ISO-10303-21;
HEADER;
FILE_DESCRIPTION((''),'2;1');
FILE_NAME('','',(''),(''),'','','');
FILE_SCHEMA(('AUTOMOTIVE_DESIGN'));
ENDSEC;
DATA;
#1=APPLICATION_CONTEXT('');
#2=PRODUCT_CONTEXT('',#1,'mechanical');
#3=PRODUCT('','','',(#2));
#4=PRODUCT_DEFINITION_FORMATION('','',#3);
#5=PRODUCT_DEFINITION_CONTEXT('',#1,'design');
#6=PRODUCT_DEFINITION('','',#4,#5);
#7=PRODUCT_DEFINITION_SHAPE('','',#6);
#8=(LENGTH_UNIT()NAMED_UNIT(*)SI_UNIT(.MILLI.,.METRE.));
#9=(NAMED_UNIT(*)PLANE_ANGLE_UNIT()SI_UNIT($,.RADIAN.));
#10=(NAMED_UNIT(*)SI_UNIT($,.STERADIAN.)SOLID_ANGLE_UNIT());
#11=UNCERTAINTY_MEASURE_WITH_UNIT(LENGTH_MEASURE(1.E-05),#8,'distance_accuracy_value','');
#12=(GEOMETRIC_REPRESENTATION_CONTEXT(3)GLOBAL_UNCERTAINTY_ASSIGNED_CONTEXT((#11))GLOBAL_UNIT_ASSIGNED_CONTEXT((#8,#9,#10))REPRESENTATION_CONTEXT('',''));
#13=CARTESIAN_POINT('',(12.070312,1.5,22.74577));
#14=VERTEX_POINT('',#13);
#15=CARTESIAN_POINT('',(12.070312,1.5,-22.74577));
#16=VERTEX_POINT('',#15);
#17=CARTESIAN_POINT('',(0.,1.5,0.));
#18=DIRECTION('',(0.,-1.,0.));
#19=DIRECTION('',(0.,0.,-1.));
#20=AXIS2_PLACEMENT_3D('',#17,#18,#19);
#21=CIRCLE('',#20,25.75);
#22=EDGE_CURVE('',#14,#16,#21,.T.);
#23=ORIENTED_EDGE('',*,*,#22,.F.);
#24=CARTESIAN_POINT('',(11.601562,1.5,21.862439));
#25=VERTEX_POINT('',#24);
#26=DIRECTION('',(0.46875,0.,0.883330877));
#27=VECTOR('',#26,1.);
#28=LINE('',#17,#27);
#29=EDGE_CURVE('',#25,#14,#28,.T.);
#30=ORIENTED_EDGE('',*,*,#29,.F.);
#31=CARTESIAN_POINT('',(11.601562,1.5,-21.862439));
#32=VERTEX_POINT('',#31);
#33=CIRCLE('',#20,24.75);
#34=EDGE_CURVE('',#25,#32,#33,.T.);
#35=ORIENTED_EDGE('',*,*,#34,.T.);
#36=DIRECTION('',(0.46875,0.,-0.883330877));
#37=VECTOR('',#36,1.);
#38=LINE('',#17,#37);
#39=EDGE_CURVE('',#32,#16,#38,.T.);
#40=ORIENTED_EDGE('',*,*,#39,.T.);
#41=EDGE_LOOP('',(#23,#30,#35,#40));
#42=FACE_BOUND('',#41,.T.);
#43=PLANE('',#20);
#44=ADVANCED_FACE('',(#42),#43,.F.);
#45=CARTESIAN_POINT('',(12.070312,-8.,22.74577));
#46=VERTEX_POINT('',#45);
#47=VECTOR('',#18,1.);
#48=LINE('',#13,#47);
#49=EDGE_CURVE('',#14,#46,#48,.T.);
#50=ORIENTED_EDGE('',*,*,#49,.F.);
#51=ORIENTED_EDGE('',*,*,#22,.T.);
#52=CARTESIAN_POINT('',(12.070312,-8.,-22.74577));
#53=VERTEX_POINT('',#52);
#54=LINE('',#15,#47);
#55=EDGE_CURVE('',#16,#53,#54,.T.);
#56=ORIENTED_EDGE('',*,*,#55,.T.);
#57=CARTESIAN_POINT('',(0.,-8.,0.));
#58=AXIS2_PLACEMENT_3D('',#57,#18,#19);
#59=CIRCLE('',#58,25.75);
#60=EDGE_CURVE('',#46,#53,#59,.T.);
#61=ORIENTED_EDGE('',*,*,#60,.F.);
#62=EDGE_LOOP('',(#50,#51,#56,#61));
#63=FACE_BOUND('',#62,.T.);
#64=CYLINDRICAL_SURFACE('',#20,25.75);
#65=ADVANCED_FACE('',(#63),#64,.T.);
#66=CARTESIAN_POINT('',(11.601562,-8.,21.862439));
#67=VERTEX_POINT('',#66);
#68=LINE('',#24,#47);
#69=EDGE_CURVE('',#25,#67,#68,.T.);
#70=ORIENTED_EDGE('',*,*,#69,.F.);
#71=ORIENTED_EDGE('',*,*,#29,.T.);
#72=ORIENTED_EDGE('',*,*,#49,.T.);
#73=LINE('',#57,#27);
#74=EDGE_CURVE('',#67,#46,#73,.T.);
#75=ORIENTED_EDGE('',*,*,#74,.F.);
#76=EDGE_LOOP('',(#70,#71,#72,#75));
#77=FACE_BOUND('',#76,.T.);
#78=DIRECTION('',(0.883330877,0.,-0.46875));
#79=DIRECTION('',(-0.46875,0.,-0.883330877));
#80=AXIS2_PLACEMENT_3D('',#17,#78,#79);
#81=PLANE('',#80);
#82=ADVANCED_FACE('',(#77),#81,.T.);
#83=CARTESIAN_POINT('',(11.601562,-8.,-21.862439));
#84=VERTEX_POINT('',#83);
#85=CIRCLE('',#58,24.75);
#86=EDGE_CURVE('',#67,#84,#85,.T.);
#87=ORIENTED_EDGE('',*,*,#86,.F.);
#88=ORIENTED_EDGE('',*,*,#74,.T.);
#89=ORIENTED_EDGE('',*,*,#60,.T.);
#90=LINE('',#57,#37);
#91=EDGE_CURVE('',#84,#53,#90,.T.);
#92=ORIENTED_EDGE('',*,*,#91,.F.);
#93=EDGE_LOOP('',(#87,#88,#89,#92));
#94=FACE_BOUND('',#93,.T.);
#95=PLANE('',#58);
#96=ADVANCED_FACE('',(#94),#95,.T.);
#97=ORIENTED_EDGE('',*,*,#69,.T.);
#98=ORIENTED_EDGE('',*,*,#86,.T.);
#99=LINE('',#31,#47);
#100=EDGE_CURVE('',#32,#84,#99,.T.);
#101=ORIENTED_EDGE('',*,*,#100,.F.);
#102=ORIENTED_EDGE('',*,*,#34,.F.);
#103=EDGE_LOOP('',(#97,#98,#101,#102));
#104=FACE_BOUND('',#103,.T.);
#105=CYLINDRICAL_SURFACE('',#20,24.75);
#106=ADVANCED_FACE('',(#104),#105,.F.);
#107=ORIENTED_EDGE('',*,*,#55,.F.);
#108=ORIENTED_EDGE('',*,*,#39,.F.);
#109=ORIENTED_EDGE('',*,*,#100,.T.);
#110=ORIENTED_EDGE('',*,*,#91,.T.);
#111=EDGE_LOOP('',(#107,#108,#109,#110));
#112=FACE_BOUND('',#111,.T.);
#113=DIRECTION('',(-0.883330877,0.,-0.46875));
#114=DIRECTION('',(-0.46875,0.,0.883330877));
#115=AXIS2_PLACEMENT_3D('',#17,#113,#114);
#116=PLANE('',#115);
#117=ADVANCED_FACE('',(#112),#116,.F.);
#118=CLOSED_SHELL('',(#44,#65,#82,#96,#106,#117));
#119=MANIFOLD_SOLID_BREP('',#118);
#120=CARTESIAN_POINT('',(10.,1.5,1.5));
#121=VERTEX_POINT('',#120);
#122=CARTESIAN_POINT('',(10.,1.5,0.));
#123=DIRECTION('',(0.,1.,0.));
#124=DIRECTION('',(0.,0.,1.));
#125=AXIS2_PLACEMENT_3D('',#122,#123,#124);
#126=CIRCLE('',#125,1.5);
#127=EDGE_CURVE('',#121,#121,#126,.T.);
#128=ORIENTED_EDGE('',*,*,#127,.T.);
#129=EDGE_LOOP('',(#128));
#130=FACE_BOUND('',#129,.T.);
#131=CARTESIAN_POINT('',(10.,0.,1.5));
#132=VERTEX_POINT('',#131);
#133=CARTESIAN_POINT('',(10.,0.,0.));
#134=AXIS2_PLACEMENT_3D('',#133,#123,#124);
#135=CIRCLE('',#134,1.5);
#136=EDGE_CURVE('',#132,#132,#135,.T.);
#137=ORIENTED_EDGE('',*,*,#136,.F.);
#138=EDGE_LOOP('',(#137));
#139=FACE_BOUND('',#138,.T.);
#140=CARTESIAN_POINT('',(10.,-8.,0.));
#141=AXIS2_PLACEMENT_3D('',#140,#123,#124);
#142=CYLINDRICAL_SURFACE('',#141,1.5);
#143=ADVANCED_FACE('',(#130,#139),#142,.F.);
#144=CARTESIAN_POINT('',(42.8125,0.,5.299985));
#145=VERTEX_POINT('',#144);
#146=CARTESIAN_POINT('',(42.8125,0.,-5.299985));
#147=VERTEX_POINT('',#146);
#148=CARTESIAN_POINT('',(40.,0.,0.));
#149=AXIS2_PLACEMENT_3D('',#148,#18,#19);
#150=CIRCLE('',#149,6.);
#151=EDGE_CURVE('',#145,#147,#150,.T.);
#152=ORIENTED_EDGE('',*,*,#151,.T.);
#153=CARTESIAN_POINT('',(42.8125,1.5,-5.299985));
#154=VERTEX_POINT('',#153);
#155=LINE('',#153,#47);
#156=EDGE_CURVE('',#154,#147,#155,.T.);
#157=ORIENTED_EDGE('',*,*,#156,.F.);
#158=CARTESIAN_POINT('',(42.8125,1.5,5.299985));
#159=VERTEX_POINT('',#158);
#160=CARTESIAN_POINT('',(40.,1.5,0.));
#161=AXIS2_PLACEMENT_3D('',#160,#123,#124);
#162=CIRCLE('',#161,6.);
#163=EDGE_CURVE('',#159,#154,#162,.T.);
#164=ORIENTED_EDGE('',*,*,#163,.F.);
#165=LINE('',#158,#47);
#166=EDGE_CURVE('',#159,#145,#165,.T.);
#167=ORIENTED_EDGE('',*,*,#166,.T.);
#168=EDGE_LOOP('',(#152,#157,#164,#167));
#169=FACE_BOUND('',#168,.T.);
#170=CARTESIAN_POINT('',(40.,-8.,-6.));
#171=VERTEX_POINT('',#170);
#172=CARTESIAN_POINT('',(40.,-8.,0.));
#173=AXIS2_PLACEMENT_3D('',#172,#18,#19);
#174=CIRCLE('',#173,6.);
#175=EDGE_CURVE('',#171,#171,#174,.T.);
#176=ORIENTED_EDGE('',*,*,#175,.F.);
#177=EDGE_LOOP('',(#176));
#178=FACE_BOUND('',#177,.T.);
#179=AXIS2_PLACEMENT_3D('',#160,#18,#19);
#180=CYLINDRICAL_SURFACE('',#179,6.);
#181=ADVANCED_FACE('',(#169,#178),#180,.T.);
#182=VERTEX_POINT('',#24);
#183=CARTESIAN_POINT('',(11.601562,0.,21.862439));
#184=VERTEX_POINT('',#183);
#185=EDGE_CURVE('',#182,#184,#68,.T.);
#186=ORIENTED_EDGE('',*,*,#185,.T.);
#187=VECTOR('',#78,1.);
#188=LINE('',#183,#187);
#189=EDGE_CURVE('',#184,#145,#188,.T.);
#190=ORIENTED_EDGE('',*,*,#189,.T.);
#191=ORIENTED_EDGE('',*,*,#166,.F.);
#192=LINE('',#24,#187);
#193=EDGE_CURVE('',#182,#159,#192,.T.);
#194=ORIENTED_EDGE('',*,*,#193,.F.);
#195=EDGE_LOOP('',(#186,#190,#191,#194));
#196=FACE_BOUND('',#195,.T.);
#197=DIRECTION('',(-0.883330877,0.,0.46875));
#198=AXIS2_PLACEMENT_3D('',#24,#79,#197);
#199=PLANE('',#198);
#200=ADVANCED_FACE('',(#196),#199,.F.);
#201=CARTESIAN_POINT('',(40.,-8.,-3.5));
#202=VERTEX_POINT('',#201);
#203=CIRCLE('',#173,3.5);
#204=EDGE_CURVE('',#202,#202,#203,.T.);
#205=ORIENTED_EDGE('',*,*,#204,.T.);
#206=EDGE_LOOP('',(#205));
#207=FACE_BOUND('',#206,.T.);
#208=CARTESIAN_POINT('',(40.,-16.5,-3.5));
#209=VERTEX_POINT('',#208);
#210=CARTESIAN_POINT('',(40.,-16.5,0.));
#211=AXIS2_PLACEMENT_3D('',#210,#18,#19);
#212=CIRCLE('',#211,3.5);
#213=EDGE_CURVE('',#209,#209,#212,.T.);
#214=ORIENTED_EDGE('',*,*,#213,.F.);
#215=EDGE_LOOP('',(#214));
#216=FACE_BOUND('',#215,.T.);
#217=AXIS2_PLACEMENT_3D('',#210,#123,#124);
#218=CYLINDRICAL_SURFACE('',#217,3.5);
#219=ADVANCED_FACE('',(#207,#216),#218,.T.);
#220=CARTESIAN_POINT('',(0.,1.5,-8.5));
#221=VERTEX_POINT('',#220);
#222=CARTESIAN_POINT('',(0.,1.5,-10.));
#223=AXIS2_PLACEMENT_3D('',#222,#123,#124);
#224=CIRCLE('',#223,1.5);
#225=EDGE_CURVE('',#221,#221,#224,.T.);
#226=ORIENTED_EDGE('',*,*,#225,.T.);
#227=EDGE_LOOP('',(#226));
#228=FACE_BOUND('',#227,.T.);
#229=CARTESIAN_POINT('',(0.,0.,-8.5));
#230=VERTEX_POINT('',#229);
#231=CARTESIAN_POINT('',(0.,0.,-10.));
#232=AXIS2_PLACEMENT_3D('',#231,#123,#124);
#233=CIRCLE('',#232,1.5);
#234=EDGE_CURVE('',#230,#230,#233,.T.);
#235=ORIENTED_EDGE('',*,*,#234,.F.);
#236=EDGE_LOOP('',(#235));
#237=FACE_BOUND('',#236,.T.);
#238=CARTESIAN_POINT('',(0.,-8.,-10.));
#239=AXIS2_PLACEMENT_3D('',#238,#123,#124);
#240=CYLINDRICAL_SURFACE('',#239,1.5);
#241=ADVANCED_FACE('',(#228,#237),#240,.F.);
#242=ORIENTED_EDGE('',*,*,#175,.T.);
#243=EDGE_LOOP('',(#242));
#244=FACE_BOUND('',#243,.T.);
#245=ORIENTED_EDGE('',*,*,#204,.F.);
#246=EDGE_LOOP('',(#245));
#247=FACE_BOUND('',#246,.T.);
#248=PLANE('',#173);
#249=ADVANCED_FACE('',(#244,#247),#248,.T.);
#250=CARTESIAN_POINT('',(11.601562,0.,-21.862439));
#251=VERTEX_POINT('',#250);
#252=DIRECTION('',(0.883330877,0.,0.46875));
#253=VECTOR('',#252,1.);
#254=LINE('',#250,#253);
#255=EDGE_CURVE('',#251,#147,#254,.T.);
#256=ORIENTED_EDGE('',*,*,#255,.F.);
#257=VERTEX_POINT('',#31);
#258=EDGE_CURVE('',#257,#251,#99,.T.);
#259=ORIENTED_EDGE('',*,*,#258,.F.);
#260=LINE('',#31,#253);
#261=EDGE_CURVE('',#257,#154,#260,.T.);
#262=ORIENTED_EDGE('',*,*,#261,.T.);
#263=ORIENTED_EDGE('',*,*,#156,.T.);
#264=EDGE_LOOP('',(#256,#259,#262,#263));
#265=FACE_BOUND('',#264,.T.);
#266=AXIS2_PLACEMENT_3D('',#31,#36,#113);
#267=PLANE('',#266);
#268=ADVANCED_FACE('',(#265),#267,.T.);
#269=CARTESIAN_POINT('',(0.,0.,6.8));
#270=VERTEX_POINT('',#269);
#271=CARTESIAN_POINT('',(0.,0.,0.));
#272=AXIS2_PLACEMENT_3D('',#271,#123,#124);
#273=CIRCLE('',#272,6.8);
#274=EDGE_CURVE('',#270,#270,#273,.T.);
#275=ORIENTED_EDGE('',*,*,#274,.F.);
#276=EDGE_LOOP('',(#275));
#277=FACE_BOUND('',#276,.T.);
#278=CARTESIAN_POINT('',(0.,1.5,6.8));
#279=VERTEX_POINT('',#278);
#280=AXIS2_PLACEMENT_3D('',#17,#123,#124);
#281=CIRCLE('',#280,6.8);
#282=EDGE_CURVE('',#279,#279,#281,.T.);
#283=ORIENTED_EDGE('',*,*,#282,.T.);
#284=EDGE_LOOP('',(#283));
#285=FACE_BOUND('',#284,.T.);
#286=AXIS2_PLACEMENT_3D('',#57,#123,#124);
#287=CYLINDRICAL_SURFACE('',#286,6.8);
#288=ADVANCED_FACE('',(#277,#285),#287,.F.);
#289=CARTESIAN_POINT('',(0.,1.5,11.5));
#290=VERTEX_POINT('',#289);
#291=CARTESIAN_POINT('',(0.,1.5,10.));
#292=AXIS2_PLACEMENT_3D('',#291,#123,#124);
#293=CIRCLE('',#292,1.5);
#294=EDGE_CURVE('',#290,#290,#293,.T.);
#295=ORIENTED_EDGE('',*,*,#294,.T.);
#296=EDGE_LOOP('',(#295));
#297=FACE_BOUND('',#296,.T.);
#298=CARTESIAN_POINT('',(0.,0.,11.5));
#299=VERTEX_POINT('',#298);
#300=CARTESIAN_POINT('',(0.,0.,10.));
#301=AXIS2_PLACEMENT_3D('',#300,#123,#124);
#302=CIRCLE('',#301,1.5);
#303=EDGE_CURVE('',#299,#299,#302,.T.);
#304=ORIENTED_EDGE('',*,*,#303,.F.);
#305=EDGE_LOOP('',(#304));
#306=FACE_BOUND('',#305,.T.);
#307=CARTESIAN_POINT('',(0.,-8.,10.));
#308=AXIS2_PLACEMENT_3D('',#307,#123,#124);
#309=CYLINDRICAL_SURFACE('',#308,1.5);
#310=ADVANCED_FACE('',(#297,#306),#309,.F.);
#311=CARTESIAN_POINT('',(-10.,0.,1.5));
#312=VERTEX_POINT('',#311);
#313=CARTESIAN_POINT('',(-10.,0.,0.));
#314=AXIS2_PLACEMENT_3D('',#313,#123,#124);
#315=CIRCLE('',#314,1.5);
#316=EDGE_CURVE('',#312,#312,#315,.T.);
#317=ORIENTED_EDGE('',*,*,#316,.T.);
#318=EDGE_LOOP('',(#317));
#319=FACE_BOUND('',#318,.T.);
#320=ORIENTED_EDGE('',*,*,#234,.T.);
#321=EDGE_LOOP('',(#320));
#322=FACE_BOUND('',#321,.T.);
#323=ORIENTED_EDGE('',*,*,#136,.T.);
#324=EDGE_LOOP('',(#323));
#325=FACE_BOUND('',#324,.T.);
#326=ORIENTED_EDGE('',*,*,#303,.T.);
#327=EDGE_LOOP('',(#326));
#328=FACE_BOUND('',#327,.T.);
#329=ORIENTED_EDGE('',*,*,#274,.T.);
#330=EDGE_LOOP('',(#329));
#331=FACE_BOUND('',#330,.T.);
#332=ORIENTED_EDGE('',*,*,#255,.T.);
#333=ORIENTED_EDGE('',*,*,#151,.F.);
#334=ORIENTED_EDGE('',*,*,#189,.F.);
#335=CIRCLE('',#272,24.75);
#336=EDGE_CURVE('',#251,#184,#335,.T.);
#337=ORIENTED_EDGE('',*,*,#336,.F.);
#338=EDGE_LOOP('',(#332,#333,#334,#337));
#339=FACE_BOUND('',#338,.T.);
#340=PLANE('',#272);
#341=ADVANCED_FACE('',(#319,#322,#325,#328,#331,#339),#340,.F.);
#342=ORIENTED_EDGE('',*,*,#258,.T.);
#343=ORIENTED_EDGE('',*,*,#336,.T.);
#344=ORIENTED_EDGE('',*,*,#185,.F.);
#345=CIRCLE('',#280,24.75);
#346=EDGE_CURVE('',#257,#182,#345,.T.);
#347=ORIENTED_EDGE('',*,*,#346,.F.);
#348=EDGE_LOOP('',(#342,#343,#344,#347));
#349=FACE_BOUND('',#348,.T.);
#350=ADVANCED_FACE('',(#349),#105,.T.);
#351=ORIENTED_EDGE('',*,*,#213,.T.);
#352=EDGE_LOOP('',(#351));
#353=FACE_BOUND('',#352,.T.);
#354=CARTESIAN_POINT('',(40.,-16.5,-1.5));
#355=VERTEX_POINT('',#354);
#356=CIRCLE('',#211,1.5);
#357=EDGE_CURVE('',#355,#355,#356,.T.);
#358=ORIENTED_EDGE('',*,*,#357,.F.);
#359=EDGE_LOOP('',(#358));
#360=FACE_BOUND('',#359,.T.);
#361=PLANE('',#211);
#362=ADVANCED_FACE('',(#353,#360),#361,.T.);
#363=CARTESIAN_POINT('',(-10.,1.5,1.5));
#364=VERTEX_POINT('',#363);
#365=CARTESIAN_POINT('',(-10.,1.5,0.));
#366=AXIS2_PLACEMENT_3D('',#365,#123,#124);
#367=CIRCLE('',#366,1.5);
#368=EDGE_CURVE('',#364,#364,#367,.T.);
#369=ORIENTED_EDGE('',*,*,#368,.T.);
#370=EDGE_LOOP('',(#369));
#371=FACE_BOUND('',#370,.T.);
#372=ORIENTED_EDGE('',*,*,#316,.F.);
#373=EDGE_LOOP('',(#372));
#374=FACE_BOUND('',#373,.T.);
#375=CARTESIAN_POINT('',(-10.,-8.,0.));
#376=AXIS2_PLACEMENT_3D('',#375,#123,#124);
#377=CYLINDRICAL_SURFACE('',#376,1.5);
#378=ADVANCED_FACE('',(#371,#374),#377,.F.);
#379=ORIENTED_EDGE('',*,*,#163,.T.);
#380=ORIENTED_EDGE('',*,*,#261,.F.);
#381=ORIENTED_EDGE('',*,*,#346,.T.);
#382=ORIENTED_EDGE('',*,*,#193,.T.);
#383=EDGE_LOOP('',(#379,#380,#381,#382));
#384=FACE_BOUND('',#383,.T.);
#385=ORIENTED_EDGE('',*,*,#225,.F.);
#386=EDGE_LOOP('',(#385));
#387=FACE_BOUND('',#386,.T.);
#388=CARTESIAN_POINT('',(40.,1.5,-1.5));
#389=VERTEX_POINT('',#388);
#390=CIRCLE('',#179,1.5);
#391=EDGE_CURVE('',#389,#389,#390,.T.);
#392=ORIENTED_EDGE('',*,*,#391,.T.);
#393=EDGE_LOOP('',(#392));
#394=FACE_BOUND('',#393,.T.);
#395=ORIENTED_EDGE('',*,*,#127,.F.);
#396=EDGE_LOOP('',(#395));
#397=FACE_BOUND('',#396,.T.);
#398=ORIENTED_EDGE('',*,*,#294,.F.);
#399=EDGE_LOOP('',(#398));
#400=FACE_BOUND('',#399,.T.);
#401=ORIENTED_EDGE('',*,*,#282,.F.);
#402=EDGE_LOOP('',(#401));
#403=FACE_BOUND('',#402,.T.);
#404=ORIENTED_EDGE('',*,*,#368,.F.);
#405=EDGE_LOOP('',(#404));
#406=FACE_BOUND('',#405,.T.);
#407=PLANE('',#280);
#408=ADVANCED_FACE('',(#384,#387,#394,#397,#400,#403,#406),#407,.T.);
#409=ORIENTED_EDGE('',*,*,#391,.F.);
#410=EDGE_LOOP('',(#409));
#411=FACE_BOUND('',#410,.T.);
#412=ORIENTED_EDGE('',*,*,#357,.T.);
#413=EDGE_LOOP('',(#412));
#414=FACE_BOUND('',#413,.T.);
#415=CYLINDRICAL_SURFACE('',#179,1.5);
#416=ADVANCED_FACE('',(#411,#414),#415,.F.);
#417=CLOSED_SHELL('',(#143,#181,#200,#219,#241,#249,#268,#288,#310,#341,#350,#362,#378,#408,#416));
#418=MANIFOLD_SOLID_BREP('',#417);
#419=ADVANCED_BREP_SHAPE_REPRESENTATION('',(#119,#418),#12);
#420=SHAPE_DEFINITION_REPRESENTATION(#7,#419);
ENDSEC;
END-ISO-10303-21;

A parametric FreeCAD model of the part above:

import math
import FreeCAD as App
import Part
import Sketcher
from FreeCAD import Vector

doc = App.newDocument("Part")
body = doc.addObject("PartDesign::Body", "Body")

sketch1 = body.newObject("Sketcher::SketchObject", "Sketch")
sketch1.AttachmentSupport = (doc.getObject("XZ_Plane"), [""])
sketch1.MapMode = "FlatFace"
sketch1.addGeometry(Part.LineSegment(Vector(43, -5, 0), Vector(12, -22, 0)), False)
sketch1.addGeometry(Part.ArcOfCircle(Part.Circle(Vector(0, 0, 0), Vector(0, 0, 1), 25), math.radians(62), math.radians(298)), False)
sketch1.addGeometry(Part.LineSegment(Vector(12, 22, 0), Vector(43, 5, 0)), False)
sketch1.addGeometry(Part.ArcOfCircle(Part.Circle(Vector(40, 0, 0), Vector(0, 0, 1), 6), math.radians(-62), math.radians(62)), False)
sketch1.addConstraint(Sketcher.Constraint("Tangent", 0, 2, 1, 2))
sketch1.addConstraint(Sketcher.Constraint("Tangent", 1, 1, 2, 1))
sketch1.addConstraint(Sketcher.Constraint("Tangent", 2, 2, 3, 2))
sketch1.addConstraint(Sketcher.Constraint("Tangent", 3, 1, 0, 1))
sketch1.addConstraint(Sketcher.Constraint("Coincident", 1, 3, -1, 1))
sketch1.addConstraint(Sketcher.Constraint("PointOnObject", 3, 3, -1))
sketch1.addConstraint(Sketcher.Constraint("Radius", 3, 6.0))
sketch1.addConstraint(Sketcher.Constraint("Radius", 1, 24.75))
sketch1.addConstraint(Sketcher.Constraint("DistanceX", -1, 1, 3, 3, 40.0))
pad1 = body.newObject("PartDesign::Pad", "Pad")
pad1.Profile = sketch1
pad1.Length = 1.5
pad1.Reversed = True

sketch2 = body.newObject("Sketcher::SketchObject", "Sketch001")
sketch2.AttachmentSupport = (doc.getObject("XZ_Plane"), [""])
sketch2.MapMode = "FlatFace"
sketch2.AttachmentOffset = App.Placement(Vector(0, 0, -1.5), App.Rotation())
sketch2.addGeometry(Part.Circle(Vector(0, 0, 0), Vector(0, 0, 1), 6.8), False)
sketch2.addGeometry(Part.Circle(Vector(0, -10, 0), Vector(0, 0, 1), 1.5), False)
sketch2.addGeometry(Part.Circle(Vector(10, 0, 0), Vector(0, 0, 1), 1.5), False)
sketch2.addGeometry(Part.Circle(Vector(0, 10, 0), Vector(0, 0, 1), 1.5), False)
sketch2.addGeometry(Part.Circle(Vector(-10, 0, 0), Vector(0, 0, 1), 1.5), False)
sketch2.addConstraint(Sketcher.Constraint("Coincident", 0, 3, -1, 1))
sketch2.addConstraint(Sketcher.Constraint("Equal", 1, 2))
sketch2.addConstraint(Sketcher.Constraint("Equal", 2, 3))
sketch2.addConstraint(Sketcher.Constraint("Equal", 3, 4))
sketch2.addConstraint(Sketcher.Constraint("Symmetric", 1, 3, 3, 3, -1, 1))
sketch2.addConstraint(Sketcher.Constraint("Symmetric", 2, 3, 4, 3, -1, 1))
sketch2.addConstraint(Sketcher.Constraint("PointOnObject", 1, 3, -2))
sketch2.addConstraint(Sketcher.Constraint("PointOnObject", 2, 3, -1))
sketch2.addConstraint(Sketcher.Constraint("Diameter", 1, 3.0))
sketch2.addConstraint(Sketcher.Constraint("Diameter", 0, 13.6))
sketch2.addConstraint(Sketcher.Constraint("DistanceY", 1, 3, -1, 1, 10.0))
sketch2.addConstraint(Sketcher.Constraint("DistanceX", -1, 1, 2, 3, 10.0))
pocket1 = body.newObject("PartDesign::Pocket", "Pocket")
pocket1.Profile = sketch2
pocket1.Type = "ThroughAll"
pocket1.Reversed = True

sketch3 = body.newObject("Sketcher::SketchObject", "Sketch002")
sketch3.AttachmentSupport = (doc.getObject("XZ_Plane"), [""])
sketch3.MapMode = "FlatFace"
sketch3.AttachmentOffset = App.Placement(Vector(0, 0, 8), App.Rotation())
sketch3.addGeometry(Part.Circle(Vector(40, 0, 0), Vector(0, 0, 1), 6), False)
sketch3.addConstraint(Sketcher.Constraint("PointOnObject", 0, 3, -1))
sketch3.addConstraint(Sketcher.Constraint("Diameter", 0, 12.0))
sketch3.addConstraint(Sketcher.Constraint("DistanceX", -1, 1, 0, 3, 40.0))
pad2 = body.newObject("PartDesign::Pad", "Pad001")
pad2.Profile = sketch3
pad2.Length = 8
pad2.Reversed = True

sketch4 = body.newObject("Sketcher::SketchObject", "Sketch003")
sketch4.AttachmentSupport = (doc.getObject("XZ_Plane"), [""])
sketch4.MapMode = "FlatFace"
sketch4.AttachmentOffset = App.Placement(Vector(0, 0, 8), App.Rotation())
sketch4.addGeometry(Part.Circle(Vector(40, 0, 0), Vector(0, 0, 1), 3.5), False)
sketch4.addConstraint(Sketcher.Constraint("PointOnObject", 0, 3, -1))
sketch4.addConstraint(Sketcher.Constraint("Diameter", 0, 7.0))
sketch4.addConstraint(Sketcher.Constraint("DistanceX", -1, 1, 0, 3, 40.0))
pad3 = body.newObject("PartDesign::Pad", "Pad002")
pad3.Profile = sketch4
pad3.Length = 8.5

sketch5 = body.newObject("Sketcher::SketchObject", "Sketch004")
sketch5.AttachmentSupport = (doc.getObject("XZ_Plane"), [""])
sketch5.MapMode = "FlatFace"
sketch5.AttachmentOffset = App.Placement(Vector(0, 0, 16.5), App.Rotation())
sketch5.addGeometry(Part.Circle(Vector(40, 0, 0), Vector(0, 0, 1), 1.5), False)
sketch5.addConstraint(Sketcher.Constraint("PointOnObject", 0, 3, -1))
sketch5.addConstraint(Sketcher.Constraint("Diameter", 0, 3.0))
sketch5.addConstraint(Sketcher.Constraint("DistanceX", -1, 1, 0, 3, 40.0))
pocket2 = body.newObject("PartDesign::Pocket", "Pocket001")
pocket2.Profile = sketch5
pocket2.Type = "ThroughAll"
body2 = doc.addObject("PartDesign::Body", "Body001")

sketch6 = body2.newObject("Sketcher::SketchObject", "Sketch005")
sketch6.AttachmentSupport = (doc.getObject("XZ_Plane001"), [""])
sketch6.MapMode = "FlatFace"
sketch6.addGeometry(Part.ArcOfCircle(Part.Circle(Vector(0, 0, 0), Vector(0, 0, 1), 24.8), math.radians(62), math.radians(298)), False)
sketch6.addGeometry(Part.LineSegment(Vector(11.6, 21.9, 0), Vector(12.1, 22.7, 0)), False)
sketch6.addGeometry(Part.ArcOfCircle(Part.Circle(Vector(0, 0, 0), Vector(0, 0, 1), 25.8), math.radians(62), math.radians(298)), False)
sketch6.addGeometry(Part.LineSegment(Vector(12.1, -22.7, 0), Vector(11.6, -21.9, 0)), False)
sketch6.addConstraint(Sketcher.Constraint("Coincident", 0, 1, 1, 1))
sketch6.addConstraint(Sketcher.Constraint("Coincident", 1, 2, 2, 1))
sketch6.addConstraint(Sketcher.Constraint("Coincident", 2, 2, 3, 1))
sketch6.addConstraint(Sketcher.Constraint("Coincident", 3, 2, 0, 2))
sketch6.addConstraint(Sketcher.Constraint("Coincident", 0, 3, -1, 1))
sketch6.addConstraint(Sketcher.Constraint("Coincident", 2, 3, -1, 1))
sketch6.addConstraint(Sketcher.Constraint("Vertical", 1, 2, 2, 2))
sketch6.addConstraint(Sketcher.Constraint("Vertical", 0, 1, 3, 2))
sketch6.addConstraint(Sketcher.Constraint("Radius", 0, 24.75))
sketch6.addConstraint(Sketcher.Constraint("Radius", 2, 25.75))
sketch6.addConstraint(Sketcher.Constraint("DistanceY", -1, 1, 0, 1, 21.862439))
sketch6.addConstraint(Sketcher.Constraint("DistanceY", -1, 1, 1, 2, 22.74577))
pad4 = body2.newObject("PartDesign::Pad", "Pad003")
pad4.Profile = sketch6
pad4.Type = "TwoLengths"
pad4.Length = 8
pad4.Length2 = 1.5

doc.recompute()
